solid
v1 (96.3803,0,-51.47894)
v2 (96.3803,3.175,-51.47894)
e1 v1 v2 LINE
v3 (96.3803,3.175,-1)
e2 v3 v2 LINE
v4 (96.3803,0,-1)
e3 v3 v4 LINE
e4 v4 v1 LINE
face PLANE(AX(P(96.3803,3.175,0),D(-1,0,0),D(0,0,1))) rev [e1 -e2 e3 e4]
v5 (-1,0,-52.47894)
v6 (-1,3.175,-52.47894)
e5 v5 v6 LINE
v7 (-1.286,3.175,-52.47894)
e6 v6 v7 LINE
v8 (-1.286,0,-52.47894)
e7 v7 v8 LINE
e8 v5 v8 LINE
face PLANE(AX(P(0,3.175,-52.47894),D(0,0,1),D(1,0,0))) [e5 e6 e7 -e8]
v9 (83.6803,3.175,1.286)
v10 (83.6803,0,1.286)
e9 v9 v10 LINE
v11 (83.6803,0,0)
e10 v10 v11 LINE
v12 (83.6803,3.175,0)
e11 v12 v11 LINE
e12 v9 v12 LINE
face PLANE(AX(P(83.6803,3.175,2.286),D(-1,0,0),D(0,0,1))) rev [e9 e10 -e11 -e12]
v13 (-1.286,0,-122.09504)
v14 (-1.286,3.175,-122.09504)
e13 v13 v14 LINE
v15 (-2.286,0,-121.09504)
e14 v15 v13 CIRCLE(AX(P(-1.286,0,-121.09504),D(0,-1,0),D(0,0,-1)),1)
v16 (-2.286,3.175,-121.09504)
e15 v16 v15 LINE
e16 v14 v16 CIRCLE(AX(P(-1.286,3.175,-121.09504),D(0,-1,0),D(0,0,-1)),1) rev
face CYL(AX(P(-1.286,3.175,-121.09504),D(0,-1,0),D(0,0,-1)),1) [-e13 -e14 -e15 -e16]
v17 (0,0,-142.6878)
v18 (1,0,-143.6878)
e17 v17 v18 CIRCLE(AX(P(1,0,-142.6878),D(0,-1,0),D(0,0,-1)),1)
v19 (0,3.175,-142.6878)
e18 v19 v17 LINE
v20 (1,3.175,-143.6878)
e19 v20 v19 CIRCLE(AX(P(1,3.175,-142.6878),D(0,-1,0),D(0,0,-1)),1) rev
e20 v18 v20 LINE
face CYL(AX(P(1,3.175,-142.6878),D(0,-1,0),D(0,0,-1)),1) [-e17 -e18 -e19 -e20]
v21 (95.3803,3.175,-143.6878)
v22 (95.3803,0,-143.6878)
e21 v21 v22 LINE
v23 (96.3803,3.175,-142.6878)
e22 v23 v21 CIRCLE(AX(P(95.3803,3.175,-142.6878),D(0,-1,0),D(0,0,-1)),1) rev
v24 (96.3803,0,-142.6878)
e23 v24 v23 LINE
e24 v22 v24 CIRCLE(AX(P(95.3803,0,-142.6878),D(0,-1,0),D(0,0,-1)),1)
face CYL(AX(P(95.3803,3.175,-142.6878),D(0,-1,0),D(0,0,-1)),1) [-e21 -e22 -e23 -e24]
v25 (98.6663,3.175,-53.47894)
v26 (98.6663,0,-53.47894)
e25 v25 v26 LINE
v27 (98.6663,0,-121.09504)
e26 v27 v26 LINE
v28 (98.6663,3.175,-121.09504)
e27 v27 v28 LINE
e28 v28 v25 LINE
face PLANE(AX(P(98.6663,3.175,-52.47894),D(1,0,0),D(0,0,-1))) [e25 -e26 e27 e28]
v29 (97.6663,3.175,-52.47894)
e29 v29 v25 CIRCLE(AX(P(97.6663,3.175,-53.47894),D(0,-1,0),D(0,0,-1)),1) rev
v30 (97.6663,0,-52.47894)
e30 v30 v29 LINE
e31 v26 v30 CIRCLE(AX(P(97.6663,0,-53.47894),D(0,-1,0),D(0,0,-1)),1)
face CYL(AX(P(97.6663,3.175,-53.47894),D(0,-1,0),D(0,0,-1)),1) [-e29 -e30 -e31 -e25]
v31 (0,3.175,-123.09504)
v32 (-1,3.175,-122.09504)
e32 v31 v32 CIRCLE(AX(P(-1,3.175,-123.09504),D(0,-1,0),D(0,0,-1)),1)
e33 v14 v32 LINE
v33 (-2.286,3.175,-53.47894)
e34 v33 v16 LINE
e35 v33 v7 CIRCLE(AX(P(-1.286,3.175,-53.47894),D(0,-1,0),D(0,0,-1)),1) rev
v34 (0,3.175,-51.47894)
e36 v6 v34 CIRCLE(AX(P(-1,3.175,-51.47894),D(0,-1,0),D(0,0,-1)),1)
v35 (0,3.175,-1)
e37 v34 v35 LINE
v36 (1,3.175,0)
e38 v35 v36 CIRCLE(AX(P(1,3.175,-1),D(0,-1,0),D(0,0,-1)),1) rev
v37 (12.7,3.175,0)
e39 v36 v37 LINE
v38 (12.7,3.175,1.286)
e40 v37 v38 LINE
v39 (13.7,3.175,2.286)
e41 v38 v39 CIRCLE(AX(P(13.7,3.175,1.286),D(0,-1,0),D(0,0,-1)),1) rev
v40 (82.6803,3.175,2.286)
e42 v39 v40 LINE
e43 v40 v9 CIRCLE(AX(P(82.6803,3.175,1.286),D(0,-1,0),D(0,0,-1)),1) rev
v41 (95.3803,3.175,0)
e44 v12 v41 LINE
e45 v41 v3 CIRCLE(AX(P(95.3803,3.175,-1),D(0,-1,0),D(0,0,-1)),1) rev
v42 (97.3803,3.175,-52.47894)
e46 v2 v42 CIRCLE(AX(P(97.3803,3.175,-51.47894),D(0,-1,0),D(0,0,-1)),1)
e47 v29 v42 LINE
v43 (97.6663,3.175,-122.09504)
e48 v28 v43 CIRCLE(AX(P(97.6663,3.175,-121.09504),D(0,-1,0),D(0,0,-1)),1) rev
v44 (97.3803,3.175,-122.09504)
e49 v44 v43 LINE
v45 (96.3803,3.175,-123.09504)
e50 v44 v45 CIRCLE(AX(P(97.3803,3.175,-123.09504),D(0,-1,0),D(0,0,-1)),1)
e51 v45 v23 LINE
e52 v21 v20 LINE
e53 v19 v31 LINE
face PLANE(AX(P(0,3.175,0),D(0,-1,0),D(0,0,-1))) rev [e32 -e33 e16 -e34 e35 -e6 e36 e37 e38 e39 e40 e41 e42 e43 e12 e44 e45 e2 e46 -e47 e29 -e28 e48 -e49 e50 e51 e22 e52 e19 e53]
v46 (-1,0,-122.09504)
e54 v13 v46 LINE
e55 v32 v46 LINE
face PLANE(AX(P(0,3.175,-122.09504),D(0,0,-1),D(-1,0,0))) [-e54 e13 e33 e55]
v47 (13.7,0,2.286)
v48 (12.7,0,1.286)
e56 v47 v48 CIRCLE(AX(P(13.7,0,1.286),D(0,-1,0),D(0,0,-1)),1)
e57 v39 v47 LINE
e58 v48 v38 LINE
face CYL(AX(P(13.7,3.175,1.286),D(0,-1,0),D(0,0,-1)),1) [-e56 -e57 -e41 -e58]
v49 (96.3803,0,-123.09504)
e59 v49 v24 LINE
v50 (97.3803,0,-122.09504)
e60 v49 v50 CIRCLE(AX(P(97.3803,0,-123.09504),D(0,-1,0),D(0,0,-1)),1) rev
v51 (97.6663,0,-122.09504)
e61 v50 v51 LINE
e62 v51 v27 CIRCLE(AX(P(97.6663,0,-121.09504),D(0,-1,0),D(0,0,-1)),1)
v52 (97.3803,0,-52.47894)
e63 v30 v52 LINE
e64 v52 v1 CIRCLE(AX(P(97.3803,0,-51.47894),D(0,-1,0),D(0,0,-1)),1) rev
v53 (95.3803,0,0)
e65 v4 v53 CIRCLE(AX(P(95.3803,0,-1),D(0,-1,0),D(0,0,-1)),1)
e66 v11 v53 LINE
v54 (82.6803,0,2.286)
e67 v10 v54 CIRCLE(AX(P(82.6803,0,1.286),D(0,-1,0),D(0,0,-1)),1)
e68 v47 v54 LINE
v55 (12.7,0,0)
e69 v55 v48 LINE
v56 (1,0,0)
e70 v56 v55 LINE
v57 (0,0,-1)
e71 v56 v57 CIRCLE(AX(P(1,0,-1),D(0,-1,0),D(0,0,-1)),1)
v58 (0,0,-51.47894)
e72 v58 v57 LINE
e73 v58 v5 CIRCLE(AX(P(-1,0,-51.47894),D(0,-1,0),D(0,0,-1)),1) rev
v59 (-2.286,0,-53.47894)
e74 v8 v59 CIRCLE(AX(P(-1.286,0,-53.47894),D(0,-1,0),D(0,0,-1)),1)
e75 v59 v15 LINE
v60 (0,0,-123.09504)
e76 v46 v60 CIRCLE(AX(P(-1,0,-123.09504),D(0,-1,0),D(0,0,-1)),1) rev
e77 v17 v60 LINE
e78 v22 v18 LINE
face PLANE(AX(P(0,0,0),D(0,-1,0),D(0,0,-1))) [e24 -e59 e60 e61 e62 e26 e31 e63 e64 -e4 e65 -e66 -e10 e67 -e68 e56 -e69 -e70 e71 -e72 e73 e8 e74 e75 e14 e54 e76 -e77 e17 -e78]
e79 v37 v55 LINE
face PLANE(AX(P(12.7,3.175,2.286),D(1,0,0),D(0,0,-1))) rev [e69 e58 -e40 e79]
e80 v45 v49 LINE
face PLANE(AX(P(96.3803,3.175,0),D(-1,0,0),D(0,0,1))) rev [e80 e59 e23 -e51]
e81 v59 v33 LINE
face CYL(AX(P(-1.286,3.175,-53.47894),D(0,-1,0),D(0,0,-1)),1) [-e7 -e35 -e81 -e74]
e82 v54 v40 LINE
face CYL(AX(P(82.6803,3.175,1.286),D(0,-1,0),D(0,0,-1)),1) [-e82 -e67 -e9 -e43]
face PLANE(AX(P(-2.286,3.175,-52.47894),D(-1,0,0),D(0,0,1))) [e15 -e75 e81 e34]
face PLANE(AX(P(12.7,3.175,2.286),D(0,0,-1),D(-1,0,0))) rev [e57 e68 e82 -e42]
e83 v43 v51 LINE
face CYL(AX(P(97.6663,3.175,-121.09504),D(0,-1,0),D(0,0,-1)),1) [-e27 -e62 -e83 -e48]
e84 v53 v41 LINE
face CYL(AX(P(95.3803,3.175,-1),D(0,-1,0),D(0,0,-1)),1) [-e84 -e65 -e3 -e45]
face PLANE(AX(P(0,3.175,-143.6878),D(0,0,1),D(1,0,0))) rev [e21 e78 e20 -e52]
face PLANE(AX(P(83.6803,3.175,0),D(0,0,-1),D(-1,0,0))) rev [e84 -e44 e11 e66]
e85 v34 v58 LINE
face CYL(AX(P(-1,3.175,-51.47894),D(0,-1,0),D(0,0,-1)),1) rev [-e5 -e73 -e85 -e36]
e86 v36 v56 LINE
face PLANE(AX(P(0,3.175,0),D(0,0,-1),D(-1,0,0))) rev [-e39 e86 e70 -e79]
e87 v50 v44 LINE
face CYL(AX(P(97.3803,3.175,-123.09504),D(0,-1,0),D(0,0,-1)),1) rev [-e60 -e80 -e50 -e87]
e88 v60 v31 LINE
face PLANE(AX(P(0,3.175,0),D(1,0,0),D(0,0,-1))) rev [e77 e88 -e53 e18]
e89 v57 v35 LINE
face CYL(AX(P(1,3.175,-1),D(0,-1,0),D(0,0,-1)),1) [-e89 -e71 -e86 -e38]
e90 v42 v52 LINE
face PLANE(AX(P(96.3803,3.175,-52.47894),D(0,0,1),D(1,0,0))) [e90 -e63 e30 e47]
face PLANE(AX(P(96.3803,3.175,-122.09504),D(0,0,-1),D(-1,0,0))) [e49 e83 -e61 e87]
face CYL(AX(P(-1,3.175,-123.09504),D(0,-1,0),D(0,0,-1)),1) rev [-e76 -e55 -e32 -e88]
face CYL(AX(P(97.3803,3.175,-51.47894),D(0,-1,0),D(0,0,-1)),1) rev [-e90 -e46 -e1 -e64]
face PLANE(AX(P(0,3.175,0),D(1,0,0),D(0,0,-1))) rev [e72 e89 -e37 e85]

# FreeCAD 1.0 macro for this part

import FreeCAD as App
import Part
import Sketcher
from FreeCAD import Vector
Q = App.Units.Quantity


def edges_at(feature, points):
    """Names of the edges that pass closest to the given points."""
    edges = feature.Shape.Edges
    near = lambda p: min(range(len(edges)), key=lambda i: edges[i].distToShape(Part.Vertex(*p))[0])
    return sorted({f"Edge{near(p) + 1}" for p in points})


def add_polygon(sketch, points):
    """Adds a closed chain of lines whose ends are joined by coincident constraints."""
    first, n = sketch.GeometryCount, len(points)
    for a, b in zip(points, points[1:] + points[:1]):
        sketch.addGeometry(Part.LineSegment(App.Vector(*a, 0), App.Vector(*b, 0)), False)
    for i in range(n):
        sketch.addConstraint(Sketcher.Constraint("Coincident", first + i, 2, first + (i + 1) % n, 1))

doc = App.newDocument("Part")
params = doc.addObject("Spreadsheet::Sheet", "Params")
for row, (alias, value) in enumerate([
    ("sketch1_width", "0.5 in"),
    ("sketch1_height", "0.09 in"),
    ("sketch1_height2", "5.657 in"),
    ("pad1_length", "0.125 in"),
    ("sketch2_width", "0.09 in"),
    ("fillet_radius", "1 mm"),
], start=1):
    params.set(f"A{row}", alias)
    params.set(f"B{row}", "=" + value)
    params.setAlias(f"B{row}", alias)

body = doc.addObject("PartDesign::Body", "Body")

sketch1 = doc.addObject("Sketcher::SketchObject", "Sketch")
body.addObject(sketch1)
sketch1.AttachmentSupport = (doc.XZ_Plane, [""])
sketch1.MapMode = "FlatFace"
add_polygon(sketch1, [(83.7, 0), (96.4, 0), (96.4, -143.7), (0, -143.7), (0, 0), (12.7, 0), (12.7, 2.3), (83.7, 2.3)])
sketch1.addConstraint([
    Sketcher.Constraint("Horizontal", 0),
    Sketcher.Constraint("Vertical", 1),
    Sketcher.Constraint("Horizontal", 2),
    Sketcher.Constraint("Vertical", 3),
    Sketcher.Constraint("Horizontal", 4),
    Sketcher.Constraint("Vertical", 5),
    Sketcher.Constraint("Horizontal", 6),
    Sketcher.Constraint("Vertical", 7),
    Sketcher.Constraint("Coincident", 3, 2, -1, 1),
    Sketcher.Constraint("PointOnObject", 0, 2, -1),
    Sketcher.Constraint("Equal", 0, 4),
    Sketcher.Constraint("DistanceX", 0, 1, 0, 2, Q("0.5 in")),
    Sketcher.Constraint("DistanceY", 5, 1, 5, 2, Q("0.09 in")),
    Sketcher.Constraint("DistanceY", 1, 2, 1, 1, Q("5.657 in")),
    Sketcher.Constraint("DistanceX", 2, 2, 2, 1, Q("3.7945 in")),
])
sketch1.setExpression("Constraints[19]", "Params.sketch1_width")
sketch1.setExpression("Constraints[20]", "Params.sketch1_height")
sketch1.setExpression("Constraints[21]", "Params.sketch1_height2")
pad1 = doc.addObject("PartDesign::Pad", "Pad")
body.addObject(pad1)
pad1.Profile = sketch1
pad1.setExpression("Length", "Params.pad1_length")
pad1.Reversed = True

sketch2 = doc.addObject("Sketcher::SketchObject", "Sketch001")
body.addObject(sketch2)
sketch2.AttachmentSupport = (doc.XZ_Plane, [""])
sketch2.MapMode = "FlatFace"
add_polygon(sketch2, [(-2.3, -52.5), (-2.3, -122.1), (0, -122.1), (0, -52.5)])
add_polygon(sketch2, [(96.4, -52.5), (96.4, -122.1), (98.7, -122.1), (98.7, -52.5)])
sketch2.addConstraint([
    Sketcher.Constraint("Vertical", 0),
    Sketcher.Constraint("Horizontal", 1),
    Sketcher.Constraint("Vertical", 2),
    Sketcher.Constraint("Horizontal", 3),
    Sketcher.Constraint("Vertical", 4),
    Sketcher.Constraint("Horizontal", 5),
    Sketcher.Constraint("Vertical", 6),
    Sketcher.Constraint("Horizontal", 7),
    Sketcher.Constraint("PointOnObject", 1, 2, -2),
    Sketcher.Constraint("Horizontal", 1, 2, 4, 2),
    Sketcher.Constraint("Horizontal", 3, 2, 6, 2),
    Sketcher.Constraint("Equal", 3, 5),
    Sketcher.Constraint("DistanceX", 1, 1, 1, 2, Q("0.09 in")),
    Sketcher.Constraint("DistanceY", 0, 2, 0, 1, 69.6161),
    Sketcher.Constraint("DistanceY", 2, 2, -1, 1, Q("2.0661 in")),
    Sketcher.Constraint("DistanceX", -1, 1, 4, 2, Q("3.7945 in")),
])
sketch2.setExpression("Constraints[20]", "Params.sketch2_width")
pad2 = doc.addObject("PartDesign::Pad", "Pad001")
body.addObject(pad2)
pad2.Profile = sketch2
pad2.Type = "UpToLast"
pad2.Reversed = True
doc.recompute()

fillet = doc.addObject("PartDesign::Fillet", "Fillet")
body.addObject(fillet)
fillet.Base = (pad2, edges_at(pad2, [
    (0, 1.587, -143.688),
    (96.38, 1.587, -143.688),
    (96.38, 1.587, 0),
    (83.68, 1.587, 2.286),
    (12.7, 1.587, 2.286),
    (0, 1.587, 0),
    (0, 1.587, -52.479),
    (0, 1.587, -122.095),
    (-2.286, 1.587, -122.095),
    (-2.286, 1.587, -52.479),
    (96.38, 1.587, -122.095),
    (96.38, 1.587, -52.479),
    (98.666, 1.587, -52.479),
    (98.666, 1.587, -122.095),
]))
fillet.setExpression("Radius", "Params.fillet_radius")

doc.recompute()
